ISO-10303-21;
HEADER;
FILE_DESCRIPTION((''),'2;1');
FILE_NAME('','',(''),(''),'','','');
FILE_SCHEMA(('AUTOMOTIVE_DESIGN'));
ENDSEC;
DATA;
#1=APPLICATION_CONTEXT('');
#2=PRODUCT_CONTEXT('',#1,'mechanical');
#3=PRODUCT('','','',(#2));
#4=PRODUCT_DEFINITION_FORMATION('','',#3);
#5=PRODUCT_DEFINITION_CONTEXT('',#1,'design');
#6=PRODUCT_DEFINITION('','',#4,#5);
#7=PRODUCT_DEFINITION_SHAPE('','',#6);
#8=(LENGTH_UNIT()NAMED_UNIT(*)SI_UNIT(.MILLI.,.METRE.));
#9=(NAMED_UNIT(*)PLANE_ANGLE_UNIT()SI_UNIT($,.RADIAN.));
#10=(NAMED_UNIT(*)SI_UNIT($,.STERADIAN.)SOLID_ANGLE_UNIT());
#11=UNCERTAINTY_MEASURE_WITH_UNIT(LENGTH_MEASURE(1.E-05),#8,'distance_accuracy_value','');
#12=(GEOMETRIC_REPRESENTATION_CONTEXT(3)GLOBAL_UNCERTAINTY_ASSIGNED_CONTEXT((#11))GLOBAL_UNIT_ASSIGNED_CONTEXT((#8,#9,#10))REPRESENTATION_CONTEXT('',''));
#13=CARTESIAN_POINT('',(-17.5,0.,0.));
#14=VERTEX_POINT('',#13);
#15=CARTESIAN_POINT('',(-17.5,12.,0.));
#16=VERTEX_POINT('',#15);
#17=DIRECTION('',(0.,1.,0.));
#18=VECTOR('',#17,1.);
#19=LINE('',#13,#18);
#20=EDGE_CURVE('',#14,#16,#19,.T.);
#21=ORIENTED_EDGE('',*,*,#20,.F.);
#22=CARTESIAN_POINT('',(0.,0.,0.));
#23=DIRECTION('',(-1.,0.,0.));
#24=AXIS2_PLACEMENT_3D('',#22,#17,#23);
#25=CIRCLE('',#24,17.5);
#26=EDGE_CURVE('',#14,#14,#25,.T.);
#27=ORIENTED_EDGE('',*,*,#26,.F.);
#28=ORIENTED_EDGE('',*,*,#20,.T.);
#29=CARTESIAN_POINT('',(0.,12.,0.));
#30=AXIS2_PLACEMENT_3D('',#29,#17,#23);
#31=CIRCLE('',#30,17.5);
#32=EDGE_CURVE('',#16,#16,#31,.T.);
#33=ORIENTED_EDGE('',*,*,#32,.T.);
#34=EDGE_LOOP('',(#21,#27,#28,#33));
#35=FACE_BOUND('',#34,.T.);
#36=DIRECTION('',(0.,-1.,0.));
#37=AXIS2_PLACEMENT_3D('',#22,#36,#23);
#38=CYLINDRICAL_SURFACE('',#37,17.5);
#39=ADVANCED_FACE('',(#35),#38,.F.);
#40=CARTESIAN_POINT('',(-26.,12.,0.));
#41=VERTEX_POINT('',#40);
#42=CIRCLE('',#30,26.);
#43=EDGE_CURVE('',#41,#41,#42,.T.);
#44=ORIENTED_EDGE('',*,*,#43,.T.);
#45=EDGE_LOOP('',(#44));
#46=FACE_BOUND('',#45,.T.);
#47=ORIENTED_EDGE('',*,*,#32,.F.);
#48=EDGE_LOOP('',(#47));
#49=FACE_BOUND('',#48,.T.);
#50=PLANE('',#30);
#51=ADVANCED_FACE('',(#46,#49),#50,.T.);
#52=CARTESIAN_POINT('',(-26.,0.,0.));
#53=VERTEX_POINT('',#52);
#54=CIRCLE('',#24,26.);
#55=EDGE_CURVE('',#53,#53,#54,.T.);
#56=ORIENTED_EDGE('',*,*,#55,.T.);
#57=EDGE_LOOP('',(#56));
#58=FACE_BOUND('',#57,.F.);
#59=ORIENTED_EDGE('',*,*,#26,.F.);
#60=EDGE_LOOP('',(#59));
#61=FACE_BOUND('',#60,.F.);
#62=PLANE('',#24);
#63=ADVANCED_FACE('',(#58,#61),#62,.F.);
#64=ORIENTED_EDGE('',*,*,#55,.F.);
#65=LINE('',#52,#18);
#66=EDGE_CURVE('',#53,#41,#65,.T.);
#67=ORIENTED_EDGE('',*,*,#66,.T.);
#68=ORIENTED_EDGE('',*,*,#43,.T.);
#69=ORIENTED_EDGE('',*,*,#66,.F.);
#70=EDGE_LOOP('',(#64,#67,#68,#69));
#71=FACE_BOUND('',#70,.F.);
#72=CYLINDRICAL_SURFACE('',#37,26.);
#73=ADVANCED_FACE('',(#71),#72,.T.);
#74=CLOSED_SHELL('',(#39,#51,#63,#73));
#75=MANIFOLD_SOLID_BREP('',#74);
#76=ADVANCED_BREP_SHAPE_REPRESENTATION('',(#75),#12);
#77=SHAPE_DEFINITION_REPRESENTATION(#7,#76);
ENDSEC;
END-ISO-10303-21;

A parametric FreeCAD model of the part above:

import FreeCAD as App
import Part
import Sketcher
Q = App.Units.Quantity

doc = App.newDocument("Part")
body = doc.addObject("PartDesign::Body", "Body")

sketch1 = body.newObject("Sketcher::SketchObject", "Sketch")
sketch1.AttachmentSupport = (doc.getObject("XZ_Plane"), [""])
sketch1.MapMode = "FlatFace"
sketch1.addGeometry([
    Part.Circle(App.Vector(0, 0, 0), App.Vector(0, 0, 1), 26),
    Part.Circle(App.Vector(0, 0, 0), App.Vector(0, 0, 1), 18),
], False)
sketch1.addConstraint([
    Sketcher.Constraint("Coincident", 0, 3, -1, 1),
    Sketcher.Constraint("Coincident", 1, 3, -1, 1),
    Sketcher.Constraint("Diameter", 0, Q("52 mm")),
    Sketcher.Constraint("Diameter", 1, Q("35 mm")),
])
pad1 = body.newObject("PartDesign::Pad", "Pad")
pad1.Profile = sketch1
pad1.Length = 12
pad1.Reversed = True

doc.recompute()
